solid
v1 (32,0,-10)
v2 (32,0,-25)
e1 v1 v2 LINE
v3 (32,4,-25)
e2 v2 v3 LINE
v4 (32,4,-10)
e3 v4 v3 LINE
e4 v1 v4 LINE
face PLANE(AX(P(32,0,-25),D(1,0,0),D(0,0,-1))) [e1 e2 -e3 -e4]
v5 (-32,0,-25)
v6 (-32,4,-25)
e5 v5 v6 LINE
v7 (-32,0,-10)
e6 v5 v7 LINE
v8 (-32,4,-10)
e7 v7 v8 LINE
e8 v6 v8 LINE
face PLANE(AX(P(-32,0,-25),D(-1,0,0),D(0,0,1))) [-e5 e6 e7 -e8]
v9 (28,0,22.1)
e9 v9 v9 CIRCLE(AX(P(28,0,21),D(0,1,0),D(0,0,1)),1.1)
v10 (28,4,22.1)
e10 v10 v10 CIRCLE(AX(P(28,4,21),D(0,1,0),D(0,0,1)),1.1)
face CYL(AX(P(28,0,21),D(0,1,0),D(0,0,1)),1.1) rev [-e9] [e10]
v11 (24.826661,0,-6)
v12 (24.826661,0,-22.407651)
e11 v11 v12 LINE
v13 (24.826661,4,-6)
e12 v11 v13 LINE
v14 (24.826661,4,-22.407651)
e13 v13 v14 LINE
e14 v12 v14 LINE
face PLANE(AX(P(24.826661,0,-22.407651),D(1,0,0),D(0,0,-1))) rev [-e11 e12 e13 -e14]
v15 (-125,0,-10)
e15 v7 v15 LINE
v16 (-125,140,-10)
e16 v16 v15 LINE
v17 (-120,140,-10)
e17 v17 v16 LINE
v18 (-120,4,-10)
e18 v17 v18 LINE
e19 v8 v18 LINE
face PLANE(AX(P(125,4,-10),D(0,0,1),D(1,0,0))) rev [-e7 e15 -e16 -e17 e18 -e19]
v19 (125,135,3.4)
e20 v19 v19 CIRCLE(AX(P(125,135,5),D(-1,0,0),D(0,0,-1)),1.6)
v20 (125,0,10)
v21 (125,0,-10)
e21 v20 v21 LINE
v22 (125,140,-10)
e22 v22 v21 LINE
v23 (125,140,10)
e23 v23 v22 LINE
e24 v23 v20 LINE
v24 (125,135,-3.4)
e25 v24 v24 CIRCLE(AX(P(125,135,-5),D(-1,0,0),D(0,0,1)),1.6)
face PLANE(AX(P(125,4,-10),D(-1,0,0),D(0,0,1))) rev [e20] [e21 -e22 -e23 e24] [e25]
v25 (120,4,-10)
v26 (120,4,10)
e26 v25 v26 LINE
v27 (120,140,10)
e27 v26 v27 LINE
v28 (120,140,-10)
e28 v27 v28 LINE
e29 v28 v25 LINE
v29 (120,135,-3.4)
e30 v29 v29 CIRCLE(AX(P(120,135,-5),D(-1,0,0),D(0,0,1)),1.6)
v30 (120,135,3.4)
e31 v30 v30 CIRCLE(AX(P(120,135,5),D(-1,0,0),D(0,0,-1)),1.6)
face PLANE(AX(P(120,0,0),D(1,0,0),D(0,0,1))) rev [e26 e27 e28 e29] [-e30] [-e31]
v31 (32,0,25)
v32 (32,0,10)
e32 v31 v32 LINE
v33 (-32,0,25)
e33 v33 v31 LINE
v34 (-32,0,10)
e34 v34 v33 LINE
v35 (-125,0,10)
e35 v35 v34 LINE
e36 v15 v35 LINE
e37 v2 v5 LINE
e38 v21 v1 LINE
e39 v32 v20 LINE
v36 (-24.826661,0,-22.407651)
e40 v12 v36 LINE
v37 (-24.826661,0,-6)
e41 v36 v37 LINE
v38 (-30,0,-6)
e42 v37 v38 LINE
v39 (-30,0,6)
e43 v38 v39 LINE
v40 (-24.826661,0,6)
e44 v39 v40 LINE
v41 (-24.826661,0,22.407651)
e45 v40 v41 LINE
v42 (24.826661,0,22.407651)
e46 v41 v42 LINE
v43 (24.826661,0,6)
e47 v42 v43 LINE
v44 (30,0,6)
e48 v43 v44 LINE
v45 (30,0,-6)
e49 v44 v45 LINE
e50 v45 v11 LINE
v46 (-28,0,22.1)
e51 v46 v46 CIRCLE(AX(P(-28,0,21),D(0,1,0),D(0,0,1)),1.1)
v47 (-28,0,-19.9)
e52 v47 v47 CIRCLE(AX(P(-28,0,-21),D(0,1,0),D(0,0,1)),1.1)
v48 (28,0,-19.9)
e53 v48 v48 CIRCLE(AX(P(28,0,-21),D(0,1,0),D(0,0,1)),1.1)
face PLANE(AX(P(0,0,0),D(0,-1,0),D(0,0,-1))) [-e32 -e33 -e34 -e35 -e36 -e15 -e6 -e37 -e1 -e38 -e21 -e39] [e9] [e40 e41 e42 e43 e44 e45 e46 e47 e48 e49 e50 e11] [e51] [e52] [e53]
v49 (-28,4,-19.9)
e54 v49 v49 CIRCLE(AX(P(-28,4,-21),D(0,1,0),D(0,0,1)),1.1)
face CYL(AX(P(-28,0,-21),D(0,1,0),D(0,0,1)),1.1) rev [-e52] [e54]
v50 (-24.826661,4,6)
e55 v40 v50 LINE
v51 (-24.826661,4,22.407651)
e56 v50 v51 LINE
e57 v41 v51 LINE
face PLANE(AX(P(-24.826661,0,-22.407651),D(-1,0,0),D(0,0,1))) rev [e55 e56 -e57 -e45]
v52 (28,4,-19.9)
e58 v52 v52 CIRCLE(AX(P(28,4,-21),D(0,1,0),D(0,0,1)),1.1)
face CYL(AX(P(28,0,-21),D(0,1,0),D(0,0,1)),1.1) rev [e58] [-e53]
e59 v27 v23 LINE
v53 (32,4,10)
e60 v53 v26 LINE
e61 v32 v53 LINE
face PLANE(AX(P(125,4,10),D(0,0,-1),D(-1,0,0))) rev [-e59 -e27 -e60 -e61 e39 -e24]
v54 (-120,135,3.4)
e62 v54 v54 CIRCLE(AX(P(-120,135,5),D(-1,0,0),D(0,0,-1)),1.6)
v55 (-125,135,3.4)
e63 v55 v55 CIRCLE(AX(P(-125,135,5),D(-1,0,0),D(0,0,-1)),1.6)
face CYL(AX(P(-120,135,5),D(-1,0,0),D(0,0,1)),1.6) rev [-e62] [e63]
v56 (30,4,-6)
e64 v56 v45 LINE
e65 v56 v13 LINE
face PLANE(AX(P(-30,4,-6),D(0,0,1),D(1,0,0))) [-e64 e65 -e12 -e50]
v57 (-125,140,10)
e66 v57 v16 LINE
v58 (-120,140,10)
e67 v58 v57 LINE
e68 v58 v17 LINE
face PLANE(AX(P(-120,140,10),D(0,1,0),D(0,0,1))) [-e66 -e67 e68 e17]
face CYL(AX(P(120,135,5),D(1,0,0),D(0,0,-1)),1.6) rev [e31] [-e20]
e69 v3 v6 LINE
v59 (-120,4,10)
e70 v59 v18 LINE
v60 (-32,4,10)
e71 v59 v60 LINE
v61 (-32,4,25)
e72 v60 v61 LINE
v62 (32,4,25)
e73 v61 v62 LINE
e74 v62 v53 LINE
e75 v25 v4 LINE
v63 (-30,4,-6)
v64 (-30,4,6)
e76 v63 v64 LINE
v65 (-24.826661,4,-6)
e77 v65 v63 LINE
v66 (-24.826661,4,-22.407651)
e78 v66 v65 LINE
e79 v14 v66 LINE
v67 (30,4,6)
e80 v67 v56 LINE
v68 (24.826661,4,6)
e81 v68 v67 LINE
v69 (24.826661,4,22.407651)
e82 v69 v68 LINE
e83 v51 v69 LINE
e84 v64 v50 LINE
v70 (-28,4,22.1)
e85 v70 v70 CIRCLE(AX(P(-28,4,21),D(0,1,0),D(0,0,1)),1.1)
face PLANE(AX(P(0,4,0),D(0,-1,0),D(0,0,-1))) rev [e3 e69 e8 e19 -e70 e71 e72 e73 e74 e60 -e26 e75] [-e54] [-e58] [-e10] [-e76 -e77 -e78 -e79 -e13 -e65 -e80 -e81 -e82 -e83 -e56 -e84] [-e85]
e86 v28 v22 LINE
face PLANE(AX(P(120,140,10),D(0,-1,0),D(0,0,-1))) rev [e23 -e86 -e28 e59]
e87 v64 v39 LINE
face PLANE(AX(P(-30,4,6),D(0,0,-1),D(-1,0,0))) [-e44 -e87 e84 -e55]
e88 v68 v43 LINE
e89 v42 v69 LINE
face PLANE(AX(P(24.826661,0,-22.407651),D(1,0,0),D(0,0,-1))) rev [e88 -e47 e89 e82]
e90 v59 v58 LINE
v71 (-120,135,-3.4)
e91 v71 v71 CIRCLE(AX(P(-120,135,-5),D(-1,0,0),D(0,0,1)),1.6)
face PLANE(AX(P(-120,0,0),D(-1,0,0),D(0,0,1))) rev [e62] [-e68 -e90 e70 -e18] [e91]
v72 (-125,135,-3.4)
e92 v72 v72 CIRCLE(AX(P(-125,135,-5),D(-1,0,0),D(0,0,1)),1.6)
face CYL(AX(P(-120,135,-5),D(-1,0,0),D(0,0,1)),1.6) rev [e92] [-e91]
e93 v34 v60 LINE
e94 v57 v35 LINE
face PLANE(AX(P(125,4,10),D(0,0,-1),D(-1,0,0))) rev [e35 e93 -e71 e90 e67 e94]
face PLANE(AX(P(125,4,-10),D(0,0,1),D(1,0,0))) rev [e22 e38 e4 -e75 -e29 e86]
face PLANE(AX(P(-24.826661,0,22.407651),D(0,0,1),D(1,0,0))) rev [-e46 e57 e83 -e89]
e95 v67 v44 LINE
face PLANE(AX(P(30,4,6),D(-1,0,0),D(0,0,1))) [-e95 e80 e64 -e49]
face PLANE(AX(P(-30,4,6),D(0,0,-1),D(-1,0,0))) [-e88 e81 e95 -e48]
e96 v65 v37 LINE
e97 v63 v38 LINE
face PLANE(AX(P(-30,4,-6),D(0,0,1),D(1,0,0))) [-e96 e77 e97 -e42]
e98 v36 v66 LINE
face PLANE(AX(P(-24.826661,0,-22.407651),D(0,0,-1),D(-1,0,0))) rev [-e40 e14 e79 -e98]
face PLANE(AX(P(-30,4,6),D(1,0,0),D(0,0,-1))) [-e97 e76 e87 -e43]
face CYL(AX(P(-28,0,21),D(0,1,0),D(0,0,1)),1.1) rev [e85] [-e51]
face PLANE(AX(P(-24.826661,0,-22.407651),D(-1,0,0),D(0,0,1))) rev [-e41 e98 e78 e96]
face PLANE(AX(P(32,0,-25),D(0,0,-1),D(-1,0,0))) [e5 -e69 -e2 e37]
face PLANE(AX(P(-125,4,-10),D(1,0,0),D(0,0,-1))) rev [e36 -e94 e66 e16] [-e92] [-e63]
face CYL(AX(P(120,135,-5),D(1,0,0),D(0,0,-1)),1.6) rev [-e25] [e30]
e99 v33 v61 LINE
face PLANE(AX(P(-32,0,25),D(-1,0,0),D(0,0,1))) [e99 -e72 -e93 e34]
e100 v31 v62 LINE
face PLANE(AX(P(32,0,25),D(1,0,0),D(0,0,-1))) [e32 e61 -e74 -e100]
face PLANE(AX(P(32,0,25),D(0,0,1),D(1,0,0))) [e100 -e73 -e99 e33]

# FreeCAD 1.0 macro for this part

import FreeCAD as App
import Part
import Sketcher
from FreeCAD import Vector
Q = App.Units.Quantity

doc = App.newDocument("Part")
body = doc.addObject("PartDesign::Body", "Body")

# Sketch on XZ plane
sketch1 = body.newObject("Sketcher::SketchObject", "Sketch")
sketch1.AttachmentSupport = (doc.getObject("XZ_Plane"), [""])
sketch1.MapMode = "FlatFace"
sketch1.addGeometry(Part.LineSegment(Vector(-125, -10, 0), Vector(-125, 10, 0)), False)
sketch1.addGeometry(Part.LineSegment(Vector(-125, 10, 0), Vector(125, 10, 0)), False)
sketch1.addGeometry(Part.LineSegment(Vector(125, 10, 0), Vector(125, -10, 0)), False)
sketch1.addGeometry(Part.LineSegment(Vector(125, -10, 0), Vector(-125, -10, 0)), False)
sketch1.addGeometry(Part.LineSegment(Vector(30, 6, 0), Vector(-30, 6, 0)), False)
sketch1.addGeometry(Part.LineSegment(Vector(-30, 6, 0), Vector(-30, -6, 0)), False)
sketch1.addGeometry(Part.LineSegment(Vector(-30, -6, 0), Vector(30, -6, 0)), False)
sketch1.addGeometry(Part.LineSegment(Vector(30, -6, 0), Vector(30, 6, 0)), False)
sketch1.addConstraint(Sketcher.Constraint("Coincident", 0, 2, 1, 1))
sketch1.addConstraint(Sketcher.Constraint("Coincident", 1, 2, 2, 1))
sketch1.addConstraint(Sketcher.Constraint("Coincident", 2, 2, 3, 1))
sketch1.addConstraint(Sketcher.Constraint("Coincident", 3, 2, 0, 1))
sketch1.addConstraint(Sketcher.Constraint("Coincident", 4, 2, 5, 1))
sketch1.addConstraint(Sketcher.Constraint("Coincident", 5, 2, 6, 1))
sketch1.addConstraint(Sketcher.Constraint("Coincident", 6, 2, 7, 1))
sketch1.addConstraint(Sketcher.Constraint("Coincident", 7, 2, 4, 1))
sketch1.addConstraint(Sketcher.Constraint("Vertical", 0))
sketch1.addConstraint(Sketcher.Constraint("Horizontal", 1))
sketch1.addConstraint(Sketcher.Constraint("Vertical", 2))
sketch1.addConstraint(Sketcher.Constraint("Horizontal", 3))
sketch1.addConstraint(Sketcher.Constraint("Horizontal", 4))
sketch1.addConstraint(Sketcher.Constraint("Vertical", 5))
sketch1.addConstraint(Sketcher.Constraint("Horizontal", 6))
sketch1.addConstraint(Sketcher.Constraint("Vertical", 7))
sketch1.addConstraint(Sketcher.Constraint("Symmetric", 0, 2, 2, 2, -1, 1))
sketch1.addConstraint(Sketcher.Constraint("Symmetric", 4, 2, 6, 2, -1, 1))
sketch1.addConstraint(Sketcher.Constraint("DistanceX", 1, 1, 1, 2, Q("250 mm")))
sketch1.addConstraint(Sketcher.Constraint("DistanceX", 4, 2, 4, 1, Q("60 mm")))
sketch1.addConstraint(Sketcher.Constraint("DistanceY", 0, 1, 0, 2, Q("20 mm")))
sketch1.addConstraint(Sketcher.Constraint("DistanceY", 5, 2, 5, 1, Q("12 mm")))
pad1 = body.newObject("PartDesign::Pad", "Pad")
pad1.Profile = sketch1
pad1.Length = 4
pad1.Reversed = True

# Sketch on YZ plane
sketch2 = body.newObject("Sketcher::SketchObject", "Sketch001")
sketch2.AttachmentSupport = (doc.getObject("YZ_Plane"), [""])
sketch2.MapMode = "FlatFace"
sketch2.AttachmentOffset = App.Placement(Vector(0, 0, -125), App.Rotation())
sketch2.addGeometry(Part.LineSegment(Vector(140, -10, 0), Vector(0, -10, 0)), False)
sketch2.addGeometry(Part.LineSegment(Vector(0, -10, 0), Vector(0, 10, 0)), False)
sketch2.addGeometry(Part.LineSegment(Vector(0, 10, 0), Vector(140, 10, 0)), False)
sketch2.addGeometry(Part.LineSegment(Vector(140, 10, 0), Vector(140, -10, 0)), False)
sketch2.addGeometry(Part.Circle(Vector(135, -5, 0), Vector(0, 0, 1), 1.6), False)
sketch2.addGeometry(Part.Circle(Vector(135, 5, 0), Vector(0, 0, 1), 1.6), False)
sketch2.addConstraint(Sketcher.Constraint("Coincident", 0, 2, 1, 1))
sketch2.addConstraint(Sketcher.Constraint("Coincident", 1, 2, 2, 1))
sketch2.addConstraint(Sketcher.Constraint("Coincident", 2, 2, 3, 1))
sketch2.addConstraint(Sketcher.Constraint("Coincident", 3, 2, 0, 1))
sketch2.addConstraint(Sketcher.Constraint("Horizontal", 0))
sketch2.addConstraint(Sketcher.Constraint("Vertical", 1))
sketch2.addConstraint(Sketcher.Constraint("Horizontal", 2))
sketch2.addConstraint(Sketcher.Constraint("Vertical", 3))
sketch2.addConstraint(Sketcher.Constraint("Equal", 4, 5))
sketch2.addConstraint(Sketcher.Constraint("Symmetric", 0, 2, 1, 2, -1, 1))
sketch2.addConstraint(Sketcher.Constraint("Symmetric", 4, 3, 5, 3, -1))
sketch2.addConstraint(Sketcher.Constraint("Diameter", 4, Q("3.2 mm")))
sketch2.addConstraint(Sketcher.Constraint("DistanceX", 0, 2, 0, 1, Q("140 mm")))
sketch2.addConstraint(Sketcher.Constraint("DistanceY", 1, 1, 1, 2, Q("20 mm")))
sketch2.addConstraint(Sketcher.Constraint("DistanceX", -1, 1, 4, 3, Q("135 mm")))
sketch2.addConstraint(Sketcher.Constraint("DistanceY", 4, 3, -1, 1, Q("5 mm")))
pad2 = body.newObject("PartDesign::Pad", "Pad001")
pad2.Profile = sketch2
pad2.Length = 5
doc.recompute()

mirrored = body.newObject("PartDesign::Mirrored", "Mirrored")
mirrored.Originals = [pad2]
mirrored.MirrorPlane = (doc.getObject("YZ_Plane"), [""])
body.Tip = mirrored

# Sketch on XZ plane
sketch3 = body.newObject("Sketcher::SketchObject", "Sketch002")
sketch3.AttachmentSupport = (doc.getObject("XZ_Plane"), [""])
sketch3.MapMode = "FlatFace"
sketch3.AttachmentOffset = App.Placement(Vector(0, 0, -4), App.Rotation())
sketch3.addGeometry(Part.LineSegment(Vector(-32, -25, 0), Vector(-32, -10, 0)), False)
sketch3.addGeometry(Part.LineSegment(Vector(-32, -10, 0), Vector(32, -10, 0)), False)
sketch3.addGeometry(Part.LineSegment(Vector(32, -10, 0), Vector(32, -25, 0)), False)
sketch3.addGeometry(Part.LineSegment(Vector(32, -25, 0), Vector(-32, -25, 0)), False)
sketch3.addGeometry(Part.Circle(Vector(-28, -21, 0), Vector(0, 0, 1), 1.1), False)
sketch3.addGeometry(Part.Circle(Vector(28, -21, 0), Vector(0, 0, 1), 1.1), False)
sketch3.addGeometry(Part.LineSegment(Vector(-32, 10, 0), Vector(-32, 25, 0)), False)
sketch3.addGeometry(Part.LineSegment(Vector(-32, 25, 0), Vector(32, 25, 0)), False)
sketch3.addGeometry(Part.LineSegment(Vector(32, 25, 0), Vector(32, 10, 0)), False)
sketch3.addGeometry(Part.LineSegment(Vector(32, 10, 0), Vector(-32, 10, 0)), False)
sketch3.addGeometry(Part.Circle(Vector(-28, 21, 0), Vector(0, 0, 1), 1.1), False)
sketch3.addGeometry(Part.Circle(Vector(28, 21, 0), Vector(0, 0, 1), 1.1), False)
sketch3.addConstraint(Sketcher.Constraint("Coincident", 0, 2, 1, 1))
sketch3.addConstraint(Sketcher.Constraint("Coincident", 1, 2, 2, 1))
sketch3.addConstraint(Sketcher.Constraint("Coincident", 2, 2, 3, 1))
sketch3.addConstraint(Sketcher.Constraint("Coincident", 3, 2, 0, 1))
sketch3.addConstraint(Sketcher.Constraint("Coincident", 6, 2, 7, 1))
sketch3.addConstraint(Sketcher.Constraint("Coincident", 7, 2, 8, 1))
sketch3.addConstraint(Sketcher.Constraint("Coincident", 8, 2, 9, 1))
sketch3.addConstraint(Sketcher.Constraint("Coincident", 9, 2, 6, 1))
sketch3.addConstraint(Sketcher.Constraint("Vertical", 0))
sketch3.addConstraint(Sketcher.Constraint("Horizontal", 1))
sketch3.addConstraint(Sketcher.Constraint("Vertical", 2))
sketch3.addConstraint(Sketcher.Constraint("Horizontal", 3))
sketch3.addConstraint(Sketcher.Constraint("Vertical", 6))
sketch3.addConstraint(Sketcher.Constraint("Horizontal", 7))
sketch3.addConstraint(Sketcher.Constraint("Vertical", 8))
sketch3.addConstraint(Sketcher.Constraint("Horizontal", 9))
sketch3.addConstraint(Sketcher.Constraint("Equal", 4, 5))
sketch3.addConstraint(Sketcher.Constraint("Equal", 5, 10))
sketch3.addConstraint(Sketcher.Constraint("Equal", 10, 11))
sketch3.addConstraint(Sketcher.Constraint("Symmetric", 5, 3, 10, 3, -1, 1))
sketch3.addConstraint(Sketcher.Constraint("Symmetric", 4, 3, 11, 3, -1, 1))
sketch3.addConstraint(Sketcher.Constraint("Symmetric", 2, 2, 6, 2, -1, 1))
sketch3.addConstraint(Sketcher.Constraint("Symmetric", 0, 2, 8, 2, -1, 1))
sketch3.addConstraint(Sketcher.Constraint("Symmetric", 4, 3, 5, 3, -2))
sketch3.addConstraint(Sketcher.Constraint("Vertical", 3, 2, 6, 2))
sketch3.addConstraint(Sketcher.Constraint("Diameter", 4, Q("2.2 mm")))
sketch3.addConstraint(Sketcher.Constraint("DistanceX", 1, 1, 1, 2, Q("64 mm")))
sketch3.addConstraint(Sketcher.Constraint("DistanceY", 0, 1, 0, 2, Q("15 mm")))
sketch3.addConstraint(Sketcher.Constraint("DistanceX", 4, 3, -1, 1, Q("28 mm")))
sketch3.addConstraint(Sketcher.Constraint("DistanceY", 4, 3, -1, 1, Q("21 mm")))
sketch3.addConstraint(Sketcher.Constraint("DistanceY", 0, 2, -1, 1, Q("10 mm")))
pad3 = body.newObject("PartDesign::Pad", "Pad002")
pad3.Profile = sketch3
pad3.Length = 4

# Sketch on XZ plane
sketch4 = body.newObject("Sketcher::SketchObject", "Sketch003")
sketch4.AttachmentSupport = (doc.getObject("XZ_Plane"), [""])
sketch4.MapMode = "FlatFace"
sketch4.AttachmentOffset = App.Placement(Vector(0, 0, -4), App.Rotation())
sketch4.addGeometry(Part.LineSegment(Vector(-25, -22, 0), Vector(-25, 22, 0)), False)
sketch4.addGeometry(Part.LineSegment(Vector(-25, 22, 0), Vector(25, 22, 0)), False)
sketch4.addGeometry(Part.LineSegment(Vector(25, 22, 0), Vector(25, -22, 0)), False)
sketch4.addGeometry(Part.LineSegment(Vector(25, -22, 0), Vector(-25, -22, 0)), False)
sketch4.addConstraint(Sketcher.Constraint("Coincident", 0, 2, 1, 1))
sketch4.addConstraint(Sketcher.Constraint("Coincident", 1, 2, 2, 1))
sketch4.addConstraint(Sketcher.Constraint("Coincident", 2, 2, 3, 1))
sketch4.addConstraint(Sketcher.Constraint("Coincident", 3, 2, 0, 1))
sketch4.addConstraint(Sketcher.Constraint("Vertical", 0))
sketch4.addConstraint(Sketcher.Constraint("Horizontal", 1))
sketch4.addConstraint(Sketcher.Constraint("Vertical", 2))
sketch4.addConstraint(Sketcher.Constraint("Horizontal", 3))
sketch4.addConstraint(Sketcher.Constraint("Symmetric", 0, 2, 2, 2, -1, 1))
sketch4.addConstraint(Sketcher.Constraint("DistanceY", 0, 1, 0, 2, Q("44.815301 mm")))
sketch4.addConstraint(Sketcher.Constraint("DistanceX", 1, 1, 1, 2, Q("49.653321 mm")))
pocket1 = body.newObject("PartDesign::Pocket", "Pocket")
pocket1.Profile = sketch4
pocket1.Length = 4
pocket1.Reversed = True

doc.recompute()
